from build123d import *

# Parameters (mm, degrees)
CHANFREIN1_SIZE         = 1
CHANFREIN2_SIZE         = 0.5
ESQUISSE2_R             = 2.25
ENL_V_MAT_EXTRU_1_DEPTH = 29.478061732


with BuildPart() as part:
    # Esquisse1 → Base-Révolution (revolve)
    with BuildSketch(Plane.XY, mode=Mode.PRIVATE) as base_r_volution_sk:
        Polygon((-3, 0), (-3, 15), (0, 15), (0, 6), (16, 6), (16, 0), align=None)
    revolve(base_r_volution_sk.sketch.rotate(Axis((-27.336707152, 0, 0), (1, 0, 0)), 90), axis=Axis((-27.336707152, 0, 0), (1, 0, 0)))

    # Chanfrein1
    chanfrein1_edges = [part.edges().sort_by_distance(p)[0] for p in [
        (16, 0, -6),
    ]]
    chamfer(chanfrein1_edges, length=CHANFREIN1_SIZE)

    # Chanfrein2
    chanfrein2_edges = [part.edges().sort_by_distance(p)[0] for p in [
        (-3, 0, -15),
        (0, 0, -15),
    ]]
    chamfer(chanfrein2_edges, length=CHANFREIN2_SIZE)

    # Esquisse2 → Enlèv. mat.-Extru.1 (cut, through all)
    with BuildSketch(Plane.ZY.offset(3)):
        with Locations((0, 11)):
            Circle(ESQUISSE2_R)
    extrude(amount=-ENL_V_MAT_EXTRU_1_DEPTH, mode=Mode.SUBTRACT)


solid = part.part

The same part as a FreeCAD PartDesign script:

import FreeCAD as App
import Part
import Sketcher

V = App.Vector


def edges_at(feature, points):
    """Names of the edges that pass closest to the given points."""
    edges = feature.Shape.Edges
    near = lambda p: min(range(len(edges)), key=lambda i: edges[i].distToShape(Part.Vertex(*p))[0])
    return sorted({f"Edge{near(p) + 1}" for p in points})

doc = App.newDocument("Part")
params = doc.addObject("Spreadsheet::Sheet", "Params")
for row, (alias, value) in enumerate([
    ("sketch1_width", "19 mm"),
    ("sketch1_width2", "16 mm"),
    ("sketch1_height", "15 mm"),
    ("sketch1_height2", "6 mm"),
    ("revolution_angle", "360 deg"),
    ("chamfer_size", "1 mm"),
    ("chamfer2_size", "0.5 mm"),
    ("sketch2_diameter", "4.5 mm"),
], start=1):
    params.set(f"A{row}", alias)
    params.set(f"B{row}", "=" + value)
    params.setAlias(f"B{row}", alias)

body = doc.addObject("PartDesign::Body", "Body")

sketch1 = body.newObject("Sketcher::SketchObject", "Sketch")
sketch1.AttachmentSupport = (doc.getObject("XY_Plane"), [""])
sketch1.MapMode = "FlatFace"
sketch1.addGeometry([
    Part.LineSegment(V(-3, 15, 0), V(-3, 0, 0)),
    Part.LineSegment(V(-3, 0, 0), V(16, 0, 0)),
    Part.LineSegment(V(16, 0, 0), V(16, 6, 0)),
    Part.LineSegment(V(16, 6, 0), V(0, 6, 0)),
    Part.LineSegment(V(0, 6, 0), V(0, 15, 0)),
    Part.LineSegment(V(0, 15, 0), V(-3, 15, 0)),
], False)
sketch1.addConstraint([
    Sketcher.Constraint("Coincident", 0, 2, 1, 1),
    Sketcher.Constraint("Coincident", 1, 2, 2, 1),
    Sketcher.Constraint("Coincident", 2, 2, 3, 1),
    Sketcher.Constraint("Coincident", 3, 2, 4, 1),
    Sketcher.Constraint("Coincident", 4, 2, 5, 1),
    Sketcher.Constraint("Coincident", 5, 2, 0, 1),
    Sketcher.Constraint("Vertical", 0),
    Sketcher.Constraint("Horizontal", 1),
    Sketcher.Constraint("Vertical", 2),
    Sketcher.Constraint("Horizontal", 3),
    Sketcher.Constraint("Vertical", 4),
    Sketcher.Constraint("Horizontal", 5),
    Sketcher.Constraint("PointOnObject", 0, 2, -1),
    Sketcher.Constraint("PointOnObject", 3, 2, -2),
    Sketcher.Constraint("DistanceX", 1, 1, 1, 2, 19.0),
    Sketcher.Constraint("DistanceX", 3, 2, 3, 1, 16.0),
    Sketcher.Constraint("DistanceY", 0, 2, 0, 1, 15.0),
    Sketcher.Constraint("DistanceY", 2, 1, 2, 2, 6.0),
])
sketch1.setExpression("Constraints[14]", "Params.sketch1_width")
sketch1.setExpression("Constraints[15]", "Params.sketch1_width2")
sketch1.setExpression("Constraints[16]", "Params.sketch1_height")
sketch1.setExpression("Constraints[17]", "Params.sketch1_height2")
revolution = body.newObject("PartDesign::Revolution", "Revolution")
revolution.Profile = sketch1
revolution.ReferenceAxis = (sketch1, ["H_Axis"])
revolution.setExpression("Angle", "Params.revolution_angle")
doc.recompute()

chamfer = body.newObject("PartDesign::Chamfer", "Chamfer")
chamfer.Base = (revolution, edges_at(revolution, [(16, 0, -6)]))
chamfer.setExpression("Size", "Params.chamfer_size")
doc.recompute()

chamfer2 = body.newObject("PartDesign::Chamfer", "Chamfer001")
chamfer2.Base = (chamfer, edges_at(chamfer, [(-3, 0, -15), (0, 0, -15)]))
chamfer2.setExpression("Size", "Params.chamfer2_size")

sketch2 = body.newObject("Sketcher::SketchObject", "Sketch001")
sketch2.AttachmentSupport = (doc.getObject("YZ_Plane"), [""])
sketch2.MapMode = "FlatFace"
sketch2.AttachmentOffset = App.Placement(V(0, 0, -3), App.Rotation())
sketch2.addGeometry(Part.Circle(V(11, 0, 0), V(0, 0, 1), 2.25), False)
sketch2.addConstraint([
    Sketcher.Constraint("PointOnObject", 0, 3, -1),
    Sketcher.Constraint("Diameter", 0, 4.5),
    Sketcher.Constraint("DistanceX", -1, 1, 0, 3, 11.0),
])
sketch2.setExpression("Constraints[1]", "Params.sketch2_diameter")
pocket1 = body.newObject("PartDesign::Pocket", "Pocket")
pocket1.Profile = sketch2
pocket1.Type = "ThroughAll"
pocket1.Reversed = True

doc.recompute()
